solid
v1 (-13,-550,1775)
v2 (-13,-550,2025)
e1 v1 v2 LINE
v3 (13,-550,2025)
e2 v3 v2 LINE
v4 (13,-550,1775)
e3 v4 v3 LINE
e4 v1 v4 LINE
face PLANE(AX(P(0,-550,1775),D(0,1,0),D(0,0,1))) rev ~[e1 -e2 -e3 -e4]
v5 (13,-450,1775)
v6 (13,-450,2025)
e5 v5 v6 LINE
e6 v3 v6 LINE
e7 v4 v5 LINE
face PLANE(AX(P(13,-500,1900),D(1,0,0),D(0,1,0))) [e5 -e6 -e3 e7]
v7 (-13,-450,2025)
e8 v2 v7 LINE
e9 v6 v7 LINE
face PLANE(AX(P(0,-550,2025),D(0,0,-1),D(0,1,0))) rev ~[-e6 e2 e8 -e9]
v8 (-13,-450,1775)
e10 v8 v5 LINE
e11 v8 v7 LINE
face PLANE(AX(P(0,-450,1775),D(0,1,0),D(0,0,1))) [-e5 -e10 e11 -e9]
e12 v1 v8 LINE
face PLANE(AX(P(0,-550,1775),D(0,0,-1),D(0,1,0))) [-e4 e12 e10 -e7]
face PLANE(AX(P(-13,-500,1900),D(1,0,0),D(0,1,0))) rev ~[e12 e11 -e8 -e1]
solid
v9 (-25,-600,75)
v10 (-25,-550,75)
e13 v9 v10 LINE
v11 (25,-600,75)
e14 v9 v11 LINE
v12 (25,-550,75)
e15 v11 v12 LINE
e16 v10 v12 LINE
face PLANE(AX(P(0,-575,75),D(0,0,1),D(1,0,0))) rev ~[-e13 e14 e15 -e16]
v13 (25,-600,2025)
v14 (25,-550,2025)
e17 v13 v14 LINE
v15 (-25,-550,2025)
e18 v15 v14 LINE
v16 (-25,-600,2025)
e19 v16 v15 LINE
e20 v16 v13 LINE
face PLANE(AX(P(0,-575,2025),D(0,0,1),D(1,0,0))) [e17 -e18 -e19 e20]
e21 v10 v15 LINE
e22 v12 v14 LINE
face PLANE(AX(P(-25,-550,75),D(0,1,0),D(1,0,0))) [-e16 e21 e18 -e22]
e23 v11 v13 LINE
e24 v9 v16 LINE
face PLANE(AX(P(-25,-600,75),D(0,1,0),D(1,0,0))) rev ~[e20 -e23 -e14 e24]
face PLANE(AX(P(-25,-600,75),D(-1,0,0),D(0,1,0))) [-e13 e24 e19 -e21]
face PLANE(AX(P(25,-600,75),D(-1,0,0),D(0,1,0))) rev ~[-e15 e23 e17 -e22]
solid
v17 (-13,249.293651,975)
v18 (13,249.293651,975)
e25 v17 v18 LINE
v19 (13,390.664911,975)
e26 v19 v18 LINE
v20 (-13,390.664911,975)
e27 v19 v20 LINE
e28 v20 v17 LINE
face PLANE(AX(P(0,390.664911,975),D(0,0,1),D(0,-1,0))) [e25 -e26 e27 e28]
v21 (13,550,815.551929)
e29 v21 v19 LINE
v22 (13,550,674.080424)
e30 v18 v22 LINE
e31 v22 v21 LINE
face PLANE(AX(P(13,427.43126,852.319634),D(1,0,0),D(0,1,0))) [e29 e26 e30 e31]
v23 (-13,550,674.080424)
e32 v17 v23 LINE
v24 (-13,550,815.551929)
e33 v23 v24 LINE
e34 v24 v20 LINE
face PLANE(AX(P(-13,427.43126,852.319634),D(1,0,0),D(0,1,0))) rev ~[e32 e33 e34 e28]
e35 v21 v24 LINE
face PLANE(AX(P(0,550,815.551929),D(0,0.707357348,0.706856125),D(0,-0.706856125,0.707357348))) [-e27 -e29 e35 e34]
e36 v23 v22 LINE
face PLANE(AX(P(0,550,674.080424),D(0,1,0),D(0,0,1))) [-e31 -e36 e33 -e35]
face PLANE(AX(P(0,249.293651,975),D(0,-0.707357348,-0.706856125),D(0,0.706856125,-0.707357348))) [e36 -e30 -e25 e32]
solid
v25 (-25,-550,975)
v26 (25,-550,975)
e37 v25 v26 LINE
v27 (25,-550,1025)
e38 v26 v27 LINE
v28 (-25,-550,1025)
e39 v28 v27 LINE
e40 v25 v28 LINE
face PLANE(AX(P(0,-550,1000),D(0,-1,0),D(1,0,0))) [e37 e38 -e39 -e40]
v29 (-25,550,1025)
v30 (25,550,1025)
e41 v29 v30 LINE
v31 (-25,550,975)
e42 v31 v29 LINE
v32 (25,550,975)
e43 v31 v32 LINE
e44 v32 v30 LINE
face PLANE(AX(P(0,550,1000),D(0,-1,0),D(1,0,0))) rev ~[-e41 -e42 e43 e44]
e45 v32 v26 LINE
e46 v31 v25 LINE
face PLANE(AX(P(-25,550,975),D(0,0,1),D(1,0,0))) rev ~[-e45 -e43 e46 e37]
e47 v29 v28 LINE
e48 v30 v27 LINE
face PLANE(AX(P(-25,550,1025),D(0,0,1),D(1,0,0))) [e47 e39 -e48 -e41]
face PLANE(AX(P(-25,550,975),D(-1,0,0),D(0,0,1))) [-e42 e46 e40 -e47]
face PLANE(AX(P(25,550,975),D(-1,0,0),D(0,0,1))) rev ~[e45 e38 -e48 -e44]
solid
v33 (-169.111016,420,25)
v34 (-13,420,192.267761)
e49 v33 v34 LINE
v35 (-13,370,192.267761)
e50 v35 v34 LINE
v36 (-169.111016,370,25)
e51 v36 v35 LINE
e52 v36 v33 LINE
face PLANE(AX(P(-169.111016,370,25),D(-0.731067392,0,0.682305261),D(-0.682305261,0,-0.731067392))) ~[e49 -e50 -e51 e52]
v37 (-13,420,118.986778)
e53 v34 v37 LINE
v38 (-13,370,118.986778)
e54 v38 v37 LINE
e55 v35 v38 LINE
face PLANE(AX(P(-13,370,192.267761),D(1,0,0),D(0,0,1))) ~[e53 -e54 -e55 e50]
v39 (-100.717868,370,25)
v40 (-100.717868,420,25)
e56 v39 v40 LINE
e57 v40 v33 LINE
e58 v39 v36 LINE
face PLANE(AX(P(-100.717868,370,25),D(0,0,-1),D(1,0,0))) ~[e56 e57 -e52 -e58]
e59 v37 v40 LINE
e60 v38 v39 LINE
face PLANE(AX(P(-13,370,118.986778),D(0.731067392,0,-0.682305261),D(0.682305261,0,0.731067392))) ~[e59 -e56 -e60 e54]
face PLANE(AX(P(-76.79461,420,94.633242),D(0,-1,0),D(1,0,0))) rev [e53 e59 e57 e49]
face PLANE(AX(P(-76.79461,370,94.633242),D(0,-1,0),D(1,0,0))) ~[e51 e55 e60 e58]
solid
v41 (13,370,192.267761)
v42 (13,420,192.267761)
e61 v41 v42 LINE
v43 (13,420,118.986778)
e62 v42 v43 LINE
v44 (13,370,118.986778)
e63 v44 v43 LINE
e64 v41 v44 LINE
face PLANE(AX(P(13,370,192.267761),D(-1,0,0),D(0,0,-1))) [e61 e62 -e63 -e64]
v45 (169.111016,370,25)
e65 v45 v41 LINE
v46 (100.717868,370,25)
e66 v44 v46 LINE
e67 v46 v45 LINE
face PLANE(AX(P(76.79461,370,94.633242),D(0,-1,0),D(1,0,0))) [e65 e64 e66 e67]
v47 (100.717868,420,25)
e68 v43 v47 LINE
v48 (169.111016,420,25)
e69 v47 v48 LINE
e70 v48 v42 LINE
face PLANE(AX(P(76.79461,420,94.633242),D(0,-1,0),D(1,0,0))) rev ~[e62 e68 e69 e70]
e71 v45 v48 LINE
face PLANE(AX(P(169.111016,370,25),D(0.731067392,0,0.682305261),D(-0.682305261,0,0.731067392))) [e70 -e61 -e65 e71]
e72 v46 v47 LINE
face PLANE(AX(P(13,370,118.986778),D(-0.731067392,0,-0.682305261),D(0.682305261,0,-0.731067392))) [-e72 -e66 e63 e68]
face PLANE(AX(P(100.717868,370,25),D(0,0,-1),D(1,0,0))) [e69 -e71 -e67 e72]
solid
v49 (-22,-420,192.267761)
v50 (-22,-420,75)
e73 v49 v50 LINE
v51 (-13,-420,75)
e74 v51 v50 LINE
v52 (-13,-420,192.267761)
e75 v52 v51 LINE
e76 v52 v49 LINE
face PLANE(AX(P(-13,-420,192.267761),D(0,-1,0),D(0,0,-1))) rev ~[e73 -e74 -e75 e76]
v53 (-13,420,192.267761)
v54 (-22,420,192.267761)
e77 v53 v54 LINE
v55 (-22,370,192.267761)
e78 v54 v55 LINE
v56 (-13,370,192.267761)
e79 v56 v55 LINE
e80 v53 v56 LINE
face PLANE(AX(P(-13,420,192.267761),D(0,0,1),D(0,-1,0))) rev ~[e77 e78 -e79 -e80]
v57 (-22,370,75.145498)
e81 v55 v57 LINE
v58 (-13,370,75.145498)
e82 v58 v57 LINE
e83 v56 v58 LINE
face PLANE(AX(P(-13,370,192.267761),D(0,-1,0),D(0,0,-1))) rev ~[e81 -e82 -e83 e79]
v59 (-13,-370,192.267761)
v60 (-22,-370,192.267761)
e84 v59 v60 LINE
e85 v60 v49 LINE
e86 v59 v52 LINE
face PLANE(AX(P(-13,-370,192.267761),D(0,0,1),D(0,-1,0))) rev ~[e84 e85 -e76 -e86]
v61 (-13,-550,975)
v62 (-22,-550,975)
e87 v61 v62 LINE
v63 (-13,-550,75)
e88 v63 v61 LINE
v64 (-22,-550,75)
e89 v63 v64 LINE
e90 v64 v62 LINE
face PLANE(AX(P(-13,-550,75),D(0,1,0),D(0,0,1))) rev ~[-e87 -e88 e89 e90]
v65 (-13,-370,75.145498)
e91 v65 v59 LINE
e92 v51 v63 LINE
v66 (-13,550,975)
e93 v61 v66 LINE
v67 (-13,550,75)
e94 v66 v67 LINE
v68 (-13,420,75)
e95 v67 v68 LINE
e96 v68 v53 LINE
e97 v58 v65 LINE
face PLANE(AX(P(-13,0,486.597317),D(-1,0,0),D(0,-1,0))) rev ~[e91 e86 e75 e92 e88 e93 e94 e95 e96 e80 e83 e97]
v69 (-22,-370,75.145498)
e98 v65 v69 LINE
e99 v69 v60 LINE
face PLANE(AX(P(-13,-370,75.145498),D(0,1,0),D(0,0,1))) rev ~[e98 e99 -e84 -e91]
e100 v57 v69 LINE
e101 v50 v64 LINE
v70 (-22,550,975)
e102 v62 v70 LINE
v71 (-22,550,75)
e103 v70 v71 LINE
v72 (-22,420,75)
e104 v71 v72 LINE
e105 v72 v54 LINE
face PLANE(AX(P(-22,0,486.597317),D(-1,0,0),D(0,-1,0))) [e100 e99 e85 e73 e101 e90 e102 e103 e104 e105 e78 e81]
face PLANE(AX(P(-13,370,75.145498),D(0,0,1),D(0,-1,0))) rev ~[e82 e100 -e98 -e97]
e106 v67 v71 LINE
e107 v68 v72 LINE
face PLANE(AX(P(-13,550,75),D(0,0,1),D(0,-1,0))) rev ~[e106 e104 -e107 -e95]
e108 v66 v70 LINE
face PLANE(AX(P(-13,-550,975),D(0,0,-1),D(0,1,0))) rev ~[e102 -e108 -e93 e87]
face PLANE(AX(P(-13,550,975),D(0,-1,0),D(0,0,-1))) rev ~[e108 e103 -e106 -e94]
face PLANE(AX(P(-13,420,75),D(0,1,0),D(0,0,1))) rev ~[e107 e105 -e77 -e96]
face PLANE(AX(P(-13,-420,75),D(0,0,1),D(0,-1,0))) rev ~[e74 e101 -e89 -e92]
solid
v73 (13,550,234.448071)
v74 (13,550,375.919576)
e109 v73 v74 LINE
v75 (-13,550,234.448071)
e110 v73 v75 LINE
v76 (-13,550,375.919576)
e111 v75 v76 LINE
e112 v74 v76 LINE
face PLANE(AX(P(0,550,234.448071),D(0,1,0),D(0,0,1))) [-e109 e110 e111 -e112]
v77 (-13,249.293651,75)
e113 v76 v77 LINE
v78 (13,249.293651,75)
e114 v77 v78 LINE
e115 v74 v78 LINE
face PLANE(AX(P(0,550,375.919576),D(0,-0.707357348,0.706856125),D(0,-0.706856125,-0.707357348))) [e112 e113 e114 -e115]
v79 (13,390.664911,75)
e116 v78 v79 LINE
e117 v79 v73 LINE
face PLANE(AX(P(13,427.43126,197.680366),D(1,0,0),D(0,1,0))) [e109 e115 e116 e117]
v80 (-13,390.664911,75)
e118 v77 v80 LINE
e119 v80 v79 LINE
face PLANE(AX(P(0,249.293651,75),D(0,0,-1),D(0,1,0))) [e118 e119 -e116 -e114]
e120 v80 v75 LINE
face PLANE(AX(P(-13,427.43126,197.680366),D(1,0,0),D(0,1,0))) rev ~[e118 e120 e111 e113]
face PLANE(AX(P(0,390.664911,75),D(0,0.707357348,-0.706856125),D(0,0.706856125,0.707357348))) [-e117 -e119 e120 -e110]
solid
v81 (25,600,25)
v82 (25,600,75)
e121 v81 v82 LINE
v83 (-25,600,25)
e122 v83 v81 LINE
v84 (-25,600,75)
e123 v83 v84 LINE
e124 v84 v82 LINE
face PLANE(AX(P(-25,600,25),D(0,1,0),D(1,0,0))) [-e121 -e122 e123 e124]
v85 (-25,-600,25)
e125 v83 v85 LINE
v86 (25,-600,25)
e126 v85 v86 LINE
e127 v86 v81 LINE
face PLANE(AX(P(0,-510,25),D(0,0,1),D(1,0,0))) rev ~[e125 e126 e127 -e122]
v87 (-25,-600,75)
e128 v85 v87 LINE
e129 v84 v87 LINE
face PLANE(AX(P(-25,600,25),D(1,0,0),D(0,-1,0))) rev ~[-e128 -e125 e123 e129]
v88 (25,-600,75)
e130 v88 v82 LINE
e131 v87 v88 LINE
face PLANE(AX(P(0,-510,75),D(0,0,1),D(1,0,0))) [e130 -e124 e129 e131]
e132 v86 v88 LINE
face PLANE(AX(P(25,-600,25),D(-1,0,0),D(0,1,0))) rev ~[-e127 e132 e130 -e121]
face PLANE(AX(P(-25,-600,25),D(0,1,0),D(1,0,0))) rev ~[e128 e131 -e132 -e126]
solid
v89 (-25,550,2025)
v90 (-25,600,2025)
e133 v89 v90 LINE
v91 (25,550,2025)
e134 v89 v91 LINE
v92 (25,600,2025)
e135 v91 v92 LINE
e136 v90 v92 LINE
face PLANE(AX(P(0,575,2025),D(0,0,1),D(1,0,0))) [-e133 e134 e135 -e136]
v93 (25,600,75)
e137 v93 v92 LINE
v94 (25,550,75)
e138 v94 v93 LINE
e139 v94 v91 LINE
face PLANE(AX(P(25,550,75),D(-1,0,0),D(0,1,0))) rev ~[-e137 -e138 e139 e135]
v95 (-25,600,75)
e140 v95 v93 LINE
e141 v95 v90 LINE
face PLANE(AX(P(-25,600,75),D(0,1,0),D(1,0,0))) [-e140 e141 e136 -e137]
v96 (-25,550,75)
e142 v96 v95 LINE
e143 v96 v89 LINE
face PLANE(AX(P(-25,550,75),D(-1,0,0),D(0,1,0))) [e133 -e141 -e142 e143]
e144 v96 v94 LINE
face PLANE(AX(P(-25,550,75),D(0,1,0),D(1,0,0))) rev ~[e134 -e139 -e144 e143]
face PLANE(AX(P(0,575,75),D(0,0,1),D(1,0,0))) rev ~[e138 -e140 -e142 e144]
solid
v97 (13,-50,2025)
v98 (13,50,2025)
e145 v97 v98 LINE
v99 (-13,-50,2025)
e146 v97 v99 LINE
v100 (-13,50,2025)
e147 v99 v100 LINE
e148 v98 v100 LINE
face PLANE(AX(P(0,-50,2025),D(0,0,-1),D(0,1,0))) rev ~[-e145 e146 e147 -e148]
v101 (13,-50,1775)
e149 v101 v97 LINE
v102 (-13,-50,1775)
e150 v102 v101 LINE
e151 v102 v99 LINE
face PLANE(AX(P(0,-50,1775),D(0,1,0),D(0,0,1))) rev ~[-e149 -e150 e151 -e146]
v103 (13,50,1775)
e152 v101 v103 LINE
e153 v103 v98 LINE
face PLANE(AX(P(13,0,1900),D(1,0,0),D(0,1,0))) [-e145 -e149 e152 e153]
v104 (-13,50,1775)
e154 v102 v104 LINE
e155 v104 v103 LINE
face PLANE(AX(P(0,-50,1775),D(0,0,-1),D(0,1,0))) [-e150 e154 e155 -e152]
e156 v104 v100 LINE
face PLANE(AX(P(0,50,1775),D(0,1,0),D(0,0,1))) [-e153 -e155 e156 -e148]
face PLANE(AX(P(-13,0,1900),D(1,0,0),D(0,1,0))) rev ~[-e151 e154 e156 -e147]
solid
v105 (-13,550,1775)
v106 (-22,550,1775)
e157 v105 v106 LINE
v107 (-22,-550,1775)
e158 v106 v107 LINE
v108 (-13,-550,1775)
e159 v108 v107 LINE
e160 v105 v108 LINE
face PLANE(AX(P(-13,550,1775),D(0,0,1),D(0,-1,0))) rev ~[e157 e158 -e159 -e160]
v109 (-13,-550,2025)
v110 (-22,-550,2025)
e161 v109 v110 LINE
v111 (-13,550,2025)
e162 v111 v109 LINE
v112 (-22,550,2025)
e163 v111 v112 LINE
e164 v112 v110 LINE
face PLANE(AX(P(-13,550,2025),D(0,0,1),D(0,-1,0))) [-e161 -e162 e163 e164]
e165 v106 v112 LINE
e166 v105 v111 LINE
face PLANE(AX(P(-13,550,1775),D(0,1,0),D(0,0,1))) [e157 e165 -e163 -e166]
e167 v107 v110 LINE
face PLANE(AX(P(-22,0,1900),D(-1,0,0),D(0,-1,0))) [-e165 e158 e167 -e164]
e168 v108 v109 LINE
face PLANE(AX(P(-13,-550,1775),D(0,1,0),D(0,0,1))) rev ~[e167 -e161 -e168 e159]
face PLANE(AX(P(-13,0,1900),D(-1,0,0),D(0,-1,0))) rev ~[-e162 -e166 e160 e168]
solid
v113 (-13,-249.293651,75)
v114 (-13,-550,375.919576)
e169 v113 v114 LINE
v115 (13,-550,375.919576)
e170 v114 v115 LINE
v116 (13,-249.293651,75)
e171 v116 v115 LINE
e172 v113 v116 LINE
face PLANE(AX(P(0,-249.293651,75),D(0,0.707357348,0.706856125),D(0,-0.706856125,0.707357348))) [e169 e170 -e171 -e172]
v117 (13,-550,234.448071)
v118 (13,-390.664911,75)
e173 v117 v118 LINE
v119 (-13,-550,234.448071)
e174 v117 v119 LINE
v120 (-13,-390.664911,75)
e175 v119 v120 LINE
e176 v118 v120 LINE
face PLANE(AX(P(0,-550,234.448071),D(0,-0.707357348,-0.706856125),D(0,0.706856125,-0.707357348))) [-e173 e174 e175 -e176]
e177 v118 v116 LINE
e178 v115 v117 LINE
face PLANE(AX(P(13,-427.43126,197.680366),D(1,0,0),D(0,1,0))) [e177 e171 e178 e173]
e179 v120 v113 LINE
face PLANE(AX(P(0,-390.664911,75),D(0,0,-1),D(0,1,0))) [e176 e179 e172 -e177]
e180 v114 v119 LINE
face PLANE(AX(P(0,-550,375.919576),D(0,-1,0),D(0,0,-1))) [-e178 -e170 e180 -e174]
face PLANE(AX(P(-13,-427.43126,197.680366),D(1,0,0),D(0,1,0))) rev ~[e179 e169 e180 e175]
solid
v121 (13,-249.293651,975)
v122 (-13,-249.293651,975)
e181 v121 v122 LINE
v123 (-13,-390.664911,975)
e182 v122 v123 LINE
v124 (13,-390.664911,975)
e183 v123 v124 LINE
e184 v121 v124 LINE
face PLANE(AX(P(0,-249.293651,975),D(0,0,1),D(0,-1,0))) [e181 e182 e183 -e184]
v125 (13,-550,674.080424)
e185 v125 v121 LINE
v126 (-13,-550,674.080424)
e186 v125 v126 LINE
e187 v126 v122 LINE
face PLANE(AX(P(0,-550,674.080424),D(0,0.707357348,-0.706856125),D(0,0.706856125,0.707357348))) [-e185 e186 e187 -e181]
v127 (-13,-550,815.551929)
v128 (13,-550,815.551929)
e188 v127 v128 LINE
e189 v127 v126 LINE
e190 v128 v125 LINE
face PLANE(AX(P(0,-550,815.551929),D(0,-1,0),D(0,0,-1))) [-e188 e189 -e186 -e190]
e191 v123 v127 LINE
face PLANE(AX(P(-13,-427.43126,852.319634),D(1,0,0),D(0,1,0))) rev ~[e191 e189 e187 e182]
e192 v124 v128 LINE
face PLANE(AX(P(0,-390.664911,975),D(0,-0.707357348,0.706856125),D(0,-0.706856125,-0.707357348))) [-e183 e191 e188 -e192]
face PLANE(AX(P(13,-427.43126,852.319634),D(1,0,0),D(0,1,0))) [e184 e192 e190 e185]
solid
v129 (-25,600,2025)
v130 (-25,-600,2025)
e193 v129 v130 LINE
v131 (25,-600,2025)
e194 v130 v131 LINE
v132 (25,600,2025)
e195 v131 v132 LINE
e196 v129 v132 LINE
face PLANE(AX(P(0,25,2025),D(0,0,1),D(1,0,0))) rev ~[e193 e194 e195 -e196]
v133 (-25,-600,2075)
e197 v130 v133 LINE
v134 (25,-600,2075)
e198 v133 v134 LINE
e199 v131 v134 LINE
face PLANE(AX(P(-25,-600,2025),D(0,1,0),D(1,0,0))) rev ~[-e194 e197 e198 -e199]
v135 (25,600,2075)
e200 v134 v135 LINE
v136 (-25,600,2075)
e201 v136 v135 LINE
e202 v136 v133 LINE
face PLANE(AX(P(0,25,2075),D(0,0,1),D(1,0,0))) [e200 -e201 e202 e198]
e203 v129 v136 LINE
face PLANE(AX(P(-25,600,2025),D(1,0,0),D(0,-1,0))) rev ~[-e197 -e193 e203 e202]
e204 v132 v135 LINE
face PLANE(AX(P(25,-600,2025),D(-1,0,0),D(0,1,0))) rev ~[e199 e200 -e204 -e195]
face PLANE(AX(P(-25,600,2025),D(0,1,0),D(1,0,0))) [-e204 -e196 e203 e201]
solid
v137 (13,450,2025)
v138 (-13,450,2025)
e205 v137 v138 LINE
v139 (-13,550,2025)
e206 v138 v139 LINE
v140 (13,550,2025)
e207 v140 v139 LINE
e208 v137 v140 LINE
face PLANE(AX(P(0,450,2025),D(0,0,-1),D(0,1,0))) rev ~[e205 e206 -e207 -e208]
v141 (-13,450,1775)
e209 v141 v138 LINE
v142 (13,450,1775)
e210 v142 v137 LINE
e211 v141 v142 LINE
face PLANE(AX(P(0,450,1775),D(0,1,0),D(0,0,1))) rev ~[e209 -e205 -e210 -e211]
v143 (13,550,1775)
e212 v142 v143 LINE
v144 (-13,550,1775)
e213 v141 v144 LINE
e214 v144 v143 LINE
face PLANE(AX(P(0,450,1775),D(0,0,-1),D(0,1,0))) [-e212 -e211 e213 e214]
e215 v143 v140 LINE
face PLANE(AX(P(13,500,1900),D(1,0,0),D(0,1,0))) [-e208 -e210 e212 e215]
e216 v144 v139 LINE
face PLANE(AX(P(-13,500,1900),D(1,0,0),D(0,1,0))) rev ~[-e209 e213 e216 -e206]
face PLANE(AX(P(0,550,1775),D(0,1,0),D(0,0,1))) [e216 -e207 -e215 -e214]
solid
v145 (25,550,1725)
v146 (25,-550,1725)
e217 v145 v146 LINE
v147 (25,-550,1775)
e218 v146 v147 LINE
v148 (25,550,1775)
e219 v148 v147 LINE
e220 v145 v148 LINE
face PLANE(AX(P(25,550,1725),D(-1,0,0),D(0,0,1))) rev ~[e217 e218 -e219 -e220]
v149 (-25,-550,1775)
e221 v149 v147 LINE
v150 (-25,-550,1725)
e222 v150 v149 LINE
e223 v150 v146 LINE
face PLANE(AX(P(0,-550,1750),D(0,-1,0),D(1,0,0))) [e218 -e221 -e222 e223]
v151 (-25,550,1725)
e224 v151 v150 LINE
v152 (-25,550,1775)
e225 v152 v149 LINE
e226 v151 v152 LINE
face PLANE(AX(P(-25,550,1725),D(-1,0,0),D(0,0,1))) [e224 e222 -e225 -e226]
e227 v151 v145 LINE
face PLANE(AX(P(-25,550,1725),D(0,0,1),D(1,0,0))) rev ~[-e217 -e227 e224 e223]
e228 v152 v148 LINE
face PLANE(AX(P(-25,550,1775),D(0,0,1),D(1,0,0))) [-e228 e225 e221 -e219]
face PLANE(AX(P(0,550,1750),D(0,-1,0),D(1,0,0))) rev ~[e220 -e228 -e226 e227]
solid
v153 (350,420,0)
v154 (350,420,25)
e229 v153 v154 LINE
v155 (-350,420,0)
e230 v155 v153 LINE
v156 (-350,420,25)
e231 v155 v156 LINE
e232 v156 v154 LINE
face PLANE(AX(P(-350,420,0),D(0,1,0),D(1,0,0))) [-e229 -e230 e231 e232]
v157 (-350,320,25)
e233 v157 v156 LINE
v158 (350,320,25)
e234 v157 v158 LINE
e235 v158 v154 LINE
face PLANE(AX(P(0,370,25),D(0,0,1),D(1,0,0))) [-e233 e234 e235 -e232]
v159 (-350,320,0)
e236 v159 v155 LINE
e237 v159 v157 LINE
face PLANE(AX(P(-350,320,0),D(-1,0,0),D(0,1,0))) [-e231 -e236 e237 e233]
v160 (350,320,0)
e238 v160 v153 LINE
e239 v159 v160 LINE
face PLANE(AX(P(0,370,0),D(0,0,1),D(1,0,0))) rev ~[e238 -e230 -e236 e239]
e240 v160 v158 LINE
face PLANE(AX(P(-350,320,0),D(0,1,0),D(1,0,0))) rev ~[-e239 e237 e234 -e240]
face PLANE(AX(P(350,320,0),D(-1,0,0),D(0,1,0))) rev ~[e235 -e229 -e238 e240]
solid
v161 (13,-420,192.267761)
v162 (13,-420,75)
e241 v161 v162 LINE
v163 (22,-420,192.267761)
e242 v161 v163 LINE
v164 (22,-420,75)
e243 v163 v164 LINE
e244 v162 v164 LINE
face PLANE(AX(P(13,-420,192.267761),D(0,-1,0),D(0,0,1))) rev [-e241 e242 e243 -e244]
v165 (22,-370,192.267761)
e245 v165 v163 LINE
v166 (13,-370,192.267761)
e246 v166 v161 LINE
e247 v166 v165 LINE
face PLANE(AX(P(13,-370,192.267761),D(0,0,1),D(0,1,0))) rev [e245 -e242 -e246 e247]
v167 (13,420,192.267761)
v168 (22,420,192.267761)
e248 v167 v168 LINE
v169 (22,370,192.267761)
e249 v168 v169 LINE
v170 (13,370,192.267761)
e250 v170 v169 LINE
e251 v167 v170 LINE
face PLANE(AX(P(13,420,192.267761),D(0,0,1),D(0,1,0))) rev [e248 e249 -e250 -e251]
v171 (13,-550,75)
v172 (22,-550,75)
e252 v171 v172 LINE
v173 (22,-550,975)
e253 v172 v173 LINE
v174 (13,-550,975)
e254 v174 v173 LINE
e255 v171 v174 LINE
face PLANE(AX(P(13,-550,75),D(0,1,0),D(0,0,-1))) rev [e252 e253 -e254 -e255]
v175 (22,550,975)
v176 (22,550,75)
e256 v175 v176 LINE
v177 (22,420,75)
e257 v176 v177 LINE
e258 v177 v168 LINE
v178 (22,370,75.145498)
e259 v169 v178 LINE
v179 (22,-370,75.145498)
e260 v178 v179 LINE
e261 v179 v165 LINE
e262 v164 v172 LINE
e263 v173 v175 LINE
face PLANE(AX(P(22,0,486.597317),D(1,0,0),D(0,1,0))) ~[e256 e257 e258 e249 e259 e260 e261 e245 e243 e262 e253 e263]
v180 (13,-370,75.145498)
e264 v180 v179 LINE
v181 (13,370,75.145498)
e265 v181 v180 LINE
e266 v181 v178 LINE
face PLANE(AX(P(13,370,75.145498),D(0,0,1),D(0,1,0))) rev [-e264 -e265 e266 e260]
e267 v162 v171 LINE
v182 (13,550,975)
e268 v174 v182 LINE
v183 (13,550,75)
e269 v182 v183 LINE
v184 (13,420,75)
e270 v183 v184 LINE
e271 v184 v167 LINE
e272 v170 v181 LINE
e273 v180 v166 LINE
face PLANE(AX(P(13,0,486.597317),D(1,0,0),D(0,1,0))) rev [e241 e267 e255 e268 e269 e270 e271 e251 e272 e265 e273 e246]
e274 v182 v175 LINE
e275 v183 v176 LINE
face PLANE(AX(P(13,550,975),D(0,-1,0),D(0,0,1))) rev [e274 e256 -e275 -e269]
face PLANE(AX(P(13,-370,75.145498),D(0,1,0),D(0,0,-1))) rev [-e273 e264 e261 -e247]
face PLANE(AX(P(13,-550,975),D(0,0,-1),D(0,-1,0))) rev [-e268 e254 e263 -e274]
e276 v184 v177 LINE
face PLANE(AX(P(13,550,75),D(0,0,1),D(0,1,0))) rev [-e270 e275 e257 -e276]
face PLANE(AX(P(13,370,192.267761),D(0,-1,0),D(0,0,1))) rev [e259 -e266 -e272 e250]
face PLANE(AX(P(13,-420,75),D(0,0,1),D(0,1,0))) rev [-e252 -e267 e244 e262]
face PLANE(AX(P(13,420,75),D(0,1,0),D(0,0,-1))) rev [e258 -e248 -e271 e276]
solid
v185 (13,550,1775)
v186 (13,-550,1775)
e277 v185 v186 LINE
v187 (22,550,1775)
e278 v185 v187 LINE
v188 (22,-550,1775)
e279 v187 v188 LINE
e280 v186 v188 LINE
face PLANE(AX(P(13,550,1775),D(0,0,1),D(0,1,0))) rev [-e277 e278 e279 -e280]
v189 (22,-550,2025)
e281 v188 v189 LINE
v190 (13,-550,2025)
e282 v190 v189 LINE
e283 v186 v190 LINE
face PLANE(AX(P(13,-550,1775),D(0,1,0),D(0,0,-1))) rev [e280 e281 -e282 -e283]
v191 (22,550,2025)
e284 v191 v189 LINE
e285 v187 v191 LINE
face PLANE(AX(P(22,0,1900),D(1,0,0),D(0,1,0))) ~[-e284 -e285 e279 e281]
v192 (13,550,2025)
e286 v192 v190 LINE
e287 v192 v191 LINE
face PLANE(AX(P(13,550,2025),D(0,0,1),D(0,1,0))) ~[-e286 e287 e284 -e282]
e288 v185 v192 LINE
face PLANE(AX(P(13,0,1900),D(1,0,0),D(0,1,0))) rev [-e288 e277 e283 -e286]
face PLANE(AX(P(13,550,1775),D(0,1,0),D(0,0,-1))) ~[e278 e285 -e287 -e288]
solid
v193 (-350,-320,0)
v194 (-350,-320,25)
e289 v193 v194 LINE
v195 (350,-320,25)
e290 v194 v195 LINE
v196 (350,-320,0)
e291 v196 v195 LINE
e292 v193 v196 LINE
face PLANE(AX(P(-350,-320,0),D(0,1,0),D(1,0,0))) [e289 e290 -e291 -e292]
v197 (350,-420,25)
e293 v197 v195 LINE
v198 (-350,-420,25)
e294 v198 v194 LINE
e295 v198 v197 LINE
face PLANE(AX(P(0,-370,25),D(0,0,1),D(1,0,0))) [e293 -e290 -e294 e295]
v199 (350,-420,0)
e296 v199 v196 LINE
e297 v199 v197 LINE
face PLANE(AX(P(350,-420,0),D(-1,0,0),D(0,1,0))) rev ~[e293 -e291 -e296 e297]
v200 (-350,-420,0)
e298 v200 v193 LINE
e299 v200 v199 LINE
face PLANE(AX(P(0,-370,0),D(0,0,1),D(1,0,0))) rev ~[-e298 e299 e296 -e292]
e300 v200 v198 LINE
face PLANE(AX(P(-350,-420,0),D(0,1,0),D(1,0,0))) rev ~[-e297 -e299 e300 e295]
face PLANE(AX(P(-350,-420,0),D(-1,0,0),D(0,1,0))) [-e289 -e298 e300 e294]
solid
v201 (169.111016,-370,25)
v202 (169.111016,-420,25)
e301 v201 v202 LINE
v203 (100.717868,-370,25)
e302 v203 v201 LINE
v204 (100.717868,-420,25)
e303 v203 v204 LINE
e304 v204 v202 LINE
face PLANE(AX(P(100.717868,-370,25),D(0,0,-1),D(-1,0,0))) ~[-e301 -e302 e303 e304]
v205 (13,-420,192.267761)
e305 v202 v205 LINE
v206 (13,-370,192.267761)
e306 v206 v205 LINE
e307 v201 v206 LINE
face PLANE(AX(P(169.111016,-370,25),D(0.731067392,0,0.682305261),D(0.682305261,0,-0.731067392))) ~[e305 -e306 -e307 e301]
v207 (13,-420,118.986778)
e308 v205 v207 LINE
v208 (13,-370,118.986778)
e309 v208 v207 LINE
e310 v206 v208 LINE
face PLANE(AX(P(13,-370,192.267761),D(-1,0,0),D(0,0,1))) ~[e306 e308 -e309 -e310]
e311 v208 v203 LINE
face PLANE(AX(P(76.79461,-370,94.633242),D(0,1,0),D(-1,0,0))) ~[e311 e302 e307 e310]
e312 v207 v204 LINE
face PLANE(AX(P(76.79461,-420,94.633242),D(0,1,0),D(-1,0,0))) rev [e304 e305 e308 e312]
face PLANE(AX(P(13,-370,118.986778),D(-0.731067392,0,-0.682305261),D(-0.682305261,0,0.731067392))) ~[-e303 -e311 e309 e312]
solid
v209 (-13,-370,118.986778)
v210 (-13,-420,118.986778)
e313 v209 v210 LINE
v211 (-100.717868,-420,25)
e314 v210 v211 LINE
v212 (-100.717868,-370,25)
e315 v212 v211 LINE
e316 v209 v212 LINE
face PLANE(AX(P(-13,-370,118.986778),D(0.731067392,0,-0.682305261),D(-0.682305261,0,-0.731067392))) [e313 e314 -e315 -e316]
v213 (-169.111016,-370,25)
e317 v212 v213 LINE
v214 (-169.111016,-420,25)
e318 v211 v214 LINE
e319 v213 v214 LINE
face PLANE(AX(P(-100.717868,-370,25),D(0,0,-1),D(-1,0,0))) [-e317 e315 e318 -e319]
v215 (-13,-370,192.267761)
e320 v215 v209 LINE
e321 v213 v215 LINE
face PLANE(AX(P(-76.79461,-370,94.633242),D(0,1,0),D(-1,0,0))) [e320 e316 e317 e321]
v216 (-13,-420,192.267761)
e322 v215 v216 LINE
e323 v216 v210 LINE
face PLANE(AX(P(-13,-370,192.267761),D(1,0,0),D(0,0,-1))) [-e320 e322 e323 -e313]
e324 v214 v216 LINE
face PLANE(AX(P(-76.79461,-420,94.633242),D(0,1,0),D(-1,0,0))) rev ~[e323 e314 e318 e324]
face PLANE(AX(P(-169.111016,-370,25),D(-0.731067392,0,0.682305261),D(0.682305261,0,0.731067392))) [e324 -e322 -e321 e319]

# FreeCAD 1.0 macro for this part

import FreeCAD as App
import Part
import Sketcher

V = App.Vector

doc = App.newDocument("Part")
body = doc.addObject("PartDesign::Body", "Body")

sketch1 = body.newObject("Sketcher::SketchObject", "Sketch")
sketch1.AttachmentSupport = (doc.getObject("XY_Plane"), [""])
sketch1.MapMode = "FlatFace"
sketch1.addGeometry([
    Part.LineSegment(V(-350, 420, 0), V(-350, 320, 0)),
    Part.LineSegment(V(-350, 320, 0), V(350, 320, 0)),
    Part.LineSegment(V(350, 320, 0), V(350, 420, 0)),
    Part.LineSegment(V(350, 420, 0), V(-350, 420, 0)),
], False)
sketch1.addConstraint([
    Sketcher.Constraint("Coincident", 0, 2, 1, 1),
    Sketcher.Constraint("Coincident", 1, 2, 2, 1),
    Sketcher.Constraint("Coincident", 2, 2, 3, 1),
    Sketcher.Constraint("Coincident", 3, 2, 0, 1),
    Sketcher.Constraint("Vertical", 0),
    Sketcher.Constraint("Horizontal", 1),
    Sketcher.Constraint("Vertical", 2),
    Sketcher.Constraint("Horizontal", 3),
    Sketcher.Constraint("DistanceX", 1, 1, 1, 2, 700.0),
    Sketcher.Constraint("DistanceY", 0, 2, 0, 1, 100.0),
    Sketcher.Constraint("DistanceX", 0, 2, -1, 1, 350.0),
    Sketcher.Constraint("DistanceY", -1, 1, 0, 2, 320.0),
])
pad1 = body.newObject("PartDesign::Pad", "Pad")
pad1.Profile = sketch1
pad1.Length = 25
body2 = doc.addObject("PartDesign::Body", "Body001")

sketch2 = body2.newObject("Sketcher::SketchObject", "Sketch001")
sketch2.AttachmentSupport = (doc.getObject("XY_Plane001"), [""])
sketch2.MapMode = "FlatFace"
sketch2.addGeometry([
    Part.LineSegment(V(-350, -320, 0), V(-350, -420, 0)),
    Part.LineSegment(V(-350, -420, 0), V(350, -420, 0)),
    Part.LineSegment(V(350, -420, 0), V(350, -320, 0)),
    Part.LineSegment(V(350, -320, 0), V(-350, -320, 0)),
], False)
sketch2.addConstraint([
    Sketcher.Constraint("Coincident", 0, 2, 1, 1),
    Sketcher.Constraint("Coincident", 1, 2, 2, 1),
    Sketcher.Constraint("Coincident", 2, 2, 3, 1),
    Sketcher.Constraint("Coincident", 3, 2, 0, 1),
    Sketcher.Constraint("Vertical", 0),
    Sketcher.Constraint("Horizontal", 1),
    Sketcher.Constraint("Vertical", 2),
    Sketcher.Constraint("Horizontal", 3),
    Sketcher.Constraint("DistanceX", 1, 1, 1, 2, 700.0),
    Sketcher.Constraint("DistanceY", 0, 2, 0, 1, 100.0),
    Sketcher.Constraint("DistanceX", 0, 2, -1, 1, 350.0),
    Sketcher.Constraint("DistanceY", 0, 2, -1, 1, 420.0),
])
pad2 = body2.newObject("PartDesign::Pad", "Pad001")
pad2.Profile = sketch2
pad2.Length = 25
body3 = doc.addObject("PartDesign::Body", "Body002")

sketch3 = body3.newObject("Sketcher::SketchObject", "Sketch002")
sketch3.AttachmentSupport = (doc.getObject("XY_Plane002"), [""])
sketch3.MapMode = "FlatFace"
sketch3.AttachmentOffset = App.Placement(V(0, 0, 25), App.Rotation())
sketch3.addGeometry([
    Part.LineSegment(V(-25, -600, 0), V(25, -600, 0)),
    Part.LineSegment(V(25, -600, 0), V(25, 600, 0)),
    Part.LineSegment(V(25, 600, 0), V(-25, 600, 0)),
    Part.LineSegment(V(-25, 600, 0), V(-25, -600, 0)),
], False)
sketch3.addConstraint([
    Sketcher.Constraint("Coincident", 0, 2, 1, 1),
    Sketcher.Constraint("Coincident", 1, 2, 2, 1),
    Sketcher.Constraint("Coincident", 2, 2, 3, 1),
    Sketcher.Constraint("Coincident", 3, 2, 0, 1),
    Sketcher.Constraint("Horizontal", 0),
    Sketcher.Constraint("Vertical", 1),
    Sketcher.Constraint("Horizontal", 2),
    Sketcher.Constraint("Vertical", 3),
    Sketcher.Constraint("Symmetric", 0, 2, 2, 2, -1, 1),
    Sketcher.Constraint("DistanceX", 0, 1, 0, 2, 50.0),
    Sketcher.Constraint("DistanceY", 1, 1, 1, 2, 1200.0),
])
pad3 = body3.newObject("PartDesign::Pad", "Pad002")
pad3.Profile = sketch3
pad3.Length = 50
body4 = doc.addObject("PartDesign::Body", "Body003")

sketch4 = body4.newObject("Sketcher::SketchObject", "Sketch003")
sketch4.AttachmentSupport = (doc.getObject("XY_Plane003"), [""])
sketch4.MapMode = "FlatFace"
sketch4.AttachmentOffset = App.Placement(V(0, 0, 75), App.Rotation())
sketch4.addGeometry([
    Part.LineSegment(V(-25, -550, 0), V(-25, -600, 0)),
    Part.LineSegment(V(-25, -600, 0), V(25, -600, 0)),
    Part.LineSegment(V(25, -600, 0), V(25, -550, 0)),
    Part.LineSegment(V(25, -550, 0), V(-25, -550, 0)),
], False)
sketch4.addConstraint([
    Sketcher.Constraint("Coincident", 0, 2, 1, 1),
    Sketcher.Constraint("Coincident", 1, 2, 2, 1),
    Sketcher.Constraint("Coincident", 2, 2, 3, 1),
    Sketcher.Constraint("Coincident", 3, 2, 0, 1),
    Sketcher.Constraint("Vertical", 0),
    Sketcher.Constraint("Horizontal", 1),
    Sketcher.Constraint("Vertical", 2),
    Sketcher.Constraint("Horizontal", 3),
    Sketcher.Constraint("Equal", 3, 0),
    Sketcher.Constraint("DistanceX", 1, 1, 1, 2, 50.0),
    Sketcher.Constraint("DistanceX", 0, 2, -1, 1, 25.0),
    Sketcher.Constraint("DistanceY", 0, 2, -1, 1, 600.0),
])
pad4 = body4.newObject("PartDesign::Pad", "Pad003")
pad4.Profile = sketch4
pad4.Length = 1950
body5 = doc.addObject("PartDesign::Body", "Body004")

sketch5 = body5.newObject("Sketcher::SketchObject", "Sketch004")
sketch5.AttachmentSupport = (doc.getObject("XY_Plane004"), [""])
sketch5.MapMode = "FlatFace"
sketch5.AttachmentOffset = App.Placement(V(0, 0, 75), App.Rotation())
sketch5.addGeometry([
    Part.LineSegment(V(-25, 600, 0), V(-25, 550, 0)),
    Part.LineSegment(V(-25, 550, 0), V(25, 550, 0)),
    Part.LineSegment(V(25, 550, 0), V(25, 600, 0)),
    Part.LineSegment(V(25, 600, 0), V(-25, 600, 0)),
], False)
sketch5.addConstraint([
    Sketcher.Constraint("Coincident", 0, 2, 1, 1),
    Sketcher.Constraint("Coincident", 1, 2, 2, 1),
    Sketcher.Constraint("Coincident", 2, 2, 3, 1),
    Sketcher.Constraint("Coincident", 3, 2, 0, 1),
    Sketcher.Constraint("Vertical", 0),
    Sketcher.Constraint("Horizontal", 1),
    Sketcher.Constraint("Vertical", 2),
    Sketcher.Constraint("Horizontal", 3),
    Sketcher.Constraint("Equal", 3, 0),
    Sketcher.Constraint("DistanceX", 1, 1, 1, 2, 50.0),
    Sketcher.Constraint("DistanceX", 0, 2, -1, 1, 25.0),
    Sketcher.Constraint("DistanceY", -1, 1, 0, 2, 550.0),
])
pad5 = body5.newObject("PartDesign::Pad", "Pad004")
pad5.Profile = sketch5
pad5.Length = 1950
body6 = doc.addObject("PartDesign::Body", "Body005")

sketch6 = body6.newObject("Sketcher::SketchObject", "Sketch005")
sketch6.AttachmentSupport = (doc.getObject("XY_Plane005"), [""])
sketch6.MapMode = "FlatFace"
sketch6.AttachmentOffset = App.Placement(V(0, 0, 2025), App.Rotation())
sketch6.addGeometry([
    Part.LineSegment(V(-25, 600, 0), V(-25, -600, 0)),
    Part.LineSegment(V(-25, -600, 0), V(25, -600, 0)),
    Part.LineSegment(V(25, -600, 0), V(25, 600, 0)),
    Part.LineSegment(V(25, 600, 0), V(-25, 600, 0)),
], False)
sketch6.addConstraint([
    Sketcher.Constraint("Coincident", 0, 2, 1, 1),
    Sketcher.Constraint("Coincident", 1, 2, 2, 1),
    Sketcher.Constraint("Coincident", 2, 2, 3, 1),
    Sketcher.Constraint("Coincident", 3, 2, 0, 1),
    Sketcher.Constraint("Vertical", 0),
    Sketcher.Constraint("Horizontal", 1),
    Sketcher.Constraint("Vertical", 2),
    Sketcher.Constraint("Horizontal", 3),
    Sketcher.Constraint("Symmetric", 0, 2, 2, 2, -1, 1),
    Sketcher.Constraint("DistanceX", 1, 1, 1, 2, 50.0),
    Sketcher.Constraint("DistanceY", 0, 2, 0, 1, 1200.0),
])
pad6 = body6.newObject("PartDesign::Pad", "Pad005")
pad6.Profile = sketch6
pad6.Length = 50
body7 = doc.addObject("PartDesign::Body", "Body006")

sketch7 = body7.newObject("Sketcher::SketchObject", "Sketch006")
sketch7.AttachmentSupport = (doc.getObject("XZ_Plane006"), [""])
sketch7.MapMode = "FlatFace"
sketch7.AttachmentOffset = App.Placement(V(0, 0, -550), App.Rotation())
sketch7.addGeometry([
    Part.LineSegment(V(-25, 1025, 0), V(-25, 975, 0)),
    Part.LineSegment(V(-25, 975, 0), V(25, 975, 0)),
    Part.LineSegment(V(25, 975, 0), V(25, 1025, 0)),
    Part.LineSegment(V(25, 1025, 0), V(-25, 1025, 0)),
], False)
sketch7.addConstraint([
    Sketcher.Constraint("Coincident", 0, 2, 1, 1),
    Sketcher.Constraint("Coincident", 1, 2, 2, 1),
    Sketcher.Constraint("Coincident", 2, 2, 3, 1),
    Sketcher.Constraint("Coincident", 3, 2, 0, 1),
    Sketcher.Constraint("Vertical", 0),
    Sketcher.Constraint("Horizontal", 1),
    Sketcher.Constraint("Vertical", 2),
    Sketcher.Constraint("Horizontal", 3),
    Sketcher.Constraint("Equal", 3, 0),
    Sketcher.Constraint("DistanceX", 1, 1, 1, 2, 50.0),
    Sketcher.Constraint("DistanceX", 0, 2, -1, 1, 25.0),
    Sketcher.Constraint("DistanceY", -1, 1, 0, 2, 975.0),
])
pad7 = body7.newObject("PartDesign::Pad", "Pad006")
pad7.Profile = sketch7
pad7.Length = 1100
body8 = doc.addObject("PartDesign::Body", "Body007")

sketch8 = body8.newObject("Sketcher::SketchObject", "Sketch007")
sketch8.AttachmentSupport = (doc.getObject("XZ_Plane007"), [""])
sketch8.MapMode = "FlatFace"
sketch8.AttachmentOffset = App.Placement(V(0, 0, -550), App.Rotation())
sketch8.addGeometry([
    Part.LineSegment(V(-25, 1775, 0), V(-25, 1725, 0)),
    Part.LineSegment(V(-25, 1725, 0), V(25, 1725, 0)),
    Part.LineSegment(V(25, 1725, 0), V(25, 1775, 0)),
    Part.LineSegment(V(25, 1775, 0), V(-25, 1775, 0)),
], False)
sketch8.addConstraint([
    Sketcher.Constraint("Coincident", 0, 2, 1, 1),
    Sketcher.Constraint("Coincident", 1, 2, 2, 1),
    Sketcher.Constraint("Coincident", 2, 2, 3, 1),
    Sketcher.Constraint("Coincident", 3, 2, 0, 1),
    Sketcher.Constraint("Vertical", 0),
    Sketcher.Constraint("Horizontal", 1),
    Sketcher.Constraint("Vertical", 2),
    Sketcher.Constraint("Horizontal", 3),
    Sketcher.Constraint("Equal", 3, 0),
    Sketcher.Constraint("DistanceX", 1, 1, 1, 2, 50.0),
    Sketcher.Constraint("DistanceX", 0, 2, -1, 1, 25.0),
    Sketcher.Constraint("DistanceY", -1, 1, 0, 2, 1725.0),
])
pad8 = body8.newObject("PartDesign::Pad", "Pad007")
pad8.Profile = sketch8
pad8.Length = 1100
body9 = doc.addObject("PartDesign::Body", "Body008")

sketch9 = body9.newObject("Sketcher::SketchObject", "Sketch008")
sketch9.AttachmentSupport = (doc.getObject("YZ_Plane008"), [""])
sketch9.MapMode = "FlatFace"
sketch9.addGeometry([
    Part.LineSegment(V(-249.293651, 975, 0), V(-390.664911, 975, 0)),
    Part.LineSegment(V(-390.664911, 975, 0), V(-550, 815.551929, 0)),
    Part.LineSegment(V(-550, 815.551929, 0), V(-550, 674.080424, 0)),
    Part.LineSegment(V(-550, 674.080424, 0), V(-249.293651, 975, 0)),
], False)
sketch9.addConstraint([
    Sketcher.Constraint("Coincident", 0, 2, 1, 1),
    Sketcher.Constraint("Coincident", 1, 2, 2, 1),
    Sketcher.Constraint("Coincident", 2, 2, 3, 1),
    Sketcher.Constraint("Coincident", 3, 2, 0, 1),
    Sketcher.Constraint("Horizontal", 0),
    Sketcher.Constraint("Vertical", 2),
    Sketcher.Constraint("Parallel", 1, 3),
    Sketcher.Constraint("DistanceY", -1, 1, 0, 2, 975.0),
    Sketcher.Constraint("DistanceX", 1, 2, -1, 1, 550.0),
    Sketcher.Constraint("Distance", 3, 425.413798),
    Sketcher.Constraint("DistanceX", 0, 2, 0, 1, 141.371261),
    Sketcher.Constraint("DistanceY", 2, 2, 2, 1, 141.471505),
])
pad9 = body9.newObject("PartDesign::Pad", "Pad008")
pad9.Profile = sketch9
pad9.Type = "TwoLengths"
pad9.Length = 13
pad9.Length2 = 13
body10 = doc.addObject("PartDesign::Body", "Body009")

sketch10 = body10.newObject("Sketcher::SketchObject", "Sketch009")
sketch10.AttachmentSupport = (doc.getObject("YZ_Plane009"), [""])
sketch10.MapMode = "FlatFace"
sketch10.addGeometry([
    Part.LineSegment(V(390.664911, 975, 0), V(249.293651, 975, 0)),
    Part.LineSegment(V(249.293651, 975, 0), V(550, 674.080424, 0)),
    Part.LineSegment(V(550, 674.080424, 0), V(550, 815.551929, 0)),
    Part.LineSegment(V(550, 815.551929, 0), V(390.664911, 975, 0)),
], False)
sketch10.addConstraint([
    Sketcher.Constraint("Coincident", 0, 2, 1, 1),
    Sketcher.Constraint("Coincident", 1, 2, 2, 1),
    Sketcher.Constraint("Coincident", 2, 2, 3, 1),
    Sketcher.Constraint("Coincident", 3, 2, 0, 1),
    Sketcher.Constraint("Horizontal", 0),
    Sketcher.Constraint("Vertical", 2),
    Sketcher.Constraint("Parallel", 1, 3),
    Sketcher.Constraint("DistanceY", -1, 1, 0, 2, 975.0),
    Sketcher.Constraint("DistanceX", -1, 1, 1, 2, 550.0),
    Sketcher.Constraint("Distance", 1, 425.413798),
    Sketcher.Constraint("DistanceX", 0, 2, 0, 1, 141.371261),
    Sketcher.Constraint("DistanceY", 2, 1, 2, 2, 141.471505),
])
pad10 = body10.newObject("PartDesign::Pad", "Pad009")
pad10.Profile = sketch10
pad10.Type = "TwoLengths"
pad10.Length = 13
pad10.Length2 = 13
body11 = doc.addObject("PartDesign::Body", "Body010")

sketch11 = body11.newObject("Sketcher::SketchObject", "Sketch010")
sketch11.AttachmentSupport = (doc.getObject("YZ_Plane010"), [""])
sketch11.MapMode = "FlatFace"
sketch11.addGeometry([
    Part.LineSegment(V(-390.664911, 75, 0), V(-249.293651, 75, 0)),
    Part.LineSegment(V(-249.293651, 75, 0), V(-550, 375.919576, 0)),
    Part.LineSegment(V(-550, 375.919576, 0), V(-550, 234.448071, 0)),
    Part.LineSegment(V(-550, 234.448071, 0), V(-390.664911, 75, 0)),
], False)
sketch11.addConstraint([
    Sketcher.Constraint("Coincident", 0, 2, 1, 1),
    Sketcher.Constraint("Coincident", 1, 2, 2, 1),
    Sketcher.Constraint("Coincident", 2, 2, 3, 1),
    Sketcher.Constraint("Coincident", 3, 2, 0, 1),
    Sketcher.Constraint("Horizontal", 0),
    Sketcher.Constraint("Vertical", 2),
    Sketcher.Constraint("Parallel", 1, 3),
    Sketcher.Constraint("DistanceY", -1, 1, 0, 2, 75.0),
    Sketcher.Constraint("DistanceX", 1, 2, -1, 1, 550.0),
    Sketcher.Constraint("Distance", 1, 425.413798),
    Sketcher.Constraint("DistanceX", 0, 1, 0, 2, 141.371261),
    Sketcher.Constraint("DistanceY", 2, 2, 2, 1, 141.471505),
])
pad11 = body11.newObject("PartDesign::Pad", "Pad010")
pad11.Profile = sketch11
pad11.Type = "TwoLengths"
pad11.Length = 13
pad11.Length2 = 13
body12 = doc.addObject("PartDesign::Body", "Body011")

sketch12 = body12.newObject("Sketcher::SketchObject", "Sketch011")
sketch12.AttachmentSupport = (doc.getObject("YZ_Plane011"), [""])
sketch12.MapMode = "FlatFace"
sketch12.addGeometry([
    Part.LineSegment(V(550, 375.919576, 0), V(249.293651, 75, 0)),
    Part.LineSegment(V(249.293651, 75, 0), V(390.664911, 75, 0)),
    Part.LineSegment(V(390.664911, 75, 0), V(550, 234.448071, 0)),
    Part.LineSegment(V(550, 234.448071, 0), V(550, 375.919576, 0)),
], False)
sketch12.addConstraint([
    Sketcher.Constraint("Coincident", 0, 2, 1, 1),
    Sketcher.Constraint("Coincident", 1, 2, 2, 1),
    Sketcher.Constraint("Coincident", 2, 2, 3, 1),
    Sketcher.Constraint("Coincident", 3, 2, 0, 1),
    Sketcher.Constraint("Horizontal", 1),
    Sketcher.Constraint("Vertical", 3),
    Sketcher.Constraint("Parallel", 0, 2),
    Sketcher.Constraint("DistanceY", -1, 1, 0, 2, 75.0),
    Sketcher.Constraint("DistanceX", -1, 1, 2, 2, 550.0),
    Sketcher.Constraint("Distance", 0, 425.413798),
    Sketcher.Constraint("DistanceX", 1, 1, 1, 2, 141.371261),
    Sketcher.Constraint("DistanceY", 3, 1, 3, 2, 141.471505),
])
pad12 = body12.newObject("PartDesign::Pad", "Pad011")
pad12.Profile = sketch12
pad12.Type = "TwoLengths"
pad12.Length = 13
pad12.Length2 = 13
body13 = doc.addObject("PartDesign::Body", "Body012")

sketch13 = body13.newObject("Sketcher::SketchObject", "Sketch012")
sketch13.AttachmentSupport = (doc.getObject("YZ_Plane012"), [""])
sketch13.MapMode = "FlatFace"
sketch13.addGeometry([
    Part.LineSegment(V(450, 2025, 0), V(450, 1775, 0)),
    Part.LineSegment(V(450, 1775, 0), V(550, 1775, 0)),
    Part.LineSegment(V(550, 1775, 0), V(550, 2025, 0)),
    Part.LineSegment(V(550, 2025, 0), V(450, 2025, 0)),
], False)
sketch13.addConstraint([
    Sketcher.Constraint("Coincident", 0, 2, 1, 1),
    Sketcher.Constraint("Coincident", 1, 2, 2, 1),
    Sketcher.Constraint("Coincident", 2, 2, 3, 1),
    Sketcher.Constraint("Coincident", 3, 2, 0, 1),
    Sketcher.Constraint("Vertical", 0),
    Sketcher.Constraint("Horizontal", 1),
    Sketcher.Constraint("Vertical", 2),
    Sketcher.Constraint("Horizontal", 3),
    Sketcher.Constraint("DistanceX", 1, 1, 1, 2, 100.0),
    Sketcher.Constraint("DistanceY", 0, 2, 0, 1, 250.0),
    Sketcher.Constraint("DistanceX", -1, 1, 0, 2, 450.0),
    Sketcher.Constraint("DistanceY", -1, 1, 0, 2, 1775.0),
])
pad13 = body13.newObject("PartDesign::Pad", "Pad012")
pad13.Profile = sketch13
pad13.Type = "TwoLengths"
pad13.Length = 13
pad13.Length2 = 13
body14 = doc.addObject("PartDesign::Body", "Body013")

sketch14 = body14.newObject("Sketcher::SketchObject", "Sketch013")
sketch14.AttachmentSupport = (doc.getObject("YZ_Plane013"), [""])
sketch14.MapMode = "FlatFace"
sketch14.addGeometry([
    Part.LineSegment(V(-550, 2025, 0), V(-550, 1775, 0)),
    Part.LineSegment(V(-550, 1775, 0), V(-450, 1775, 0)),
    Part.LineSegment(V(-450, 1775, 0), V(-450, 2025, 0)),
    Part.LineSegment(V(-450, 2025, 0), V(-550, 2025, 0)),
], False)
sketch14.addConstraint([
    Sketcher.Constraint("Coincident", 0, 2, 1, 1),
    Sketcher.Constraint("Coincident", 1, 2, 2, 1),
    Sketcher.Constraint("Coincident", 2, 2, 3, 1),
    Sketcher.Constraint("Coincident", 3, 2, 0, 1),
    Sketcher.Constraint("Vertical", 0),
    Sketcher.Constraint("Horizontal", 1),
    Sketcher.Constraint("Vertical", 2),
    Sketcher.Constraint("Horizontal", 3),
    Sketcher.Constraint("DistanceX", 1, 1, 1, 2, 100.0),
    Sketcher.Constraint("DistanceY", 0, 2, 0, 1, 250.0),
    Sketcher.Constraint("DistanceX", 0, 2, -1, 1, 550.0),
    Sketcher.Constraint("DistanceY", -1, 1, 0, 2, 1775.0),
])
pad14 = body14.newObject("PartDesign::Pad", "Pad013")
pad14.Profile = sketch14
pad14.Type = "TwoLengths"
pad14.Length = 13
pad14.Length2 = 13
body15 = doc.addObject("PartDesign::Body", "Body014")

sketch15 = body15.newObject("Sketcher::SketchObject", "Sketch014")
sketch15.AttachmentSupport = (doc.getObject("YZ_Plane014"), [""])
sketch15.MapMode = "FlatFace"
sketch15.addGeometry([
    Part.LineSegment(V(-50, 2025, 0), V(-50, 1775, 0)),
    Part.LineSegment(V(-50, 1775, 0), V(50, 1775, 0)),
    Part.LineSegment(V(50, 1775, 0), V(50, 2025, 0)),
    Part.LineSegment(V(50, 2025, 0), V(-50, 2025, 0)),
], False)
sketch15.addConstraint([
    Sketcher.Constraint("Coincident", 0, 2, 1, 1),
    Sketcher.Constraint("Coincident", 1, 2, 2, 1),
    Sketcher.Constraint("Coincident", 2, 2, 3, 1),
    Sketcher.Constraint("Coincident", 3, 2, 0, 1),
    Sketcher.Constraint("Vertical", 0),
    Sketcher.Constraint("Horizontal", 1),
    Sketcher.Constraint("Vertical", 2),
    Sketcher.Constraint("Horizontal", 3),
    Sketcher.Constraint("DistanceX", 1, 1, 1, 2, 100.0),
    Sketcher.Constraint("DistanceY", 0, 2, 0, 1, 250.0),
    Sketcher.Constraint("DistanceX", 0, 2, -1, 1, 50.0),
    Sketcher.Constraint("DistanceY", -1, 1, 0, 2, 1775.0),
])
pad15 = body15.newObject("PartDesign::Pad", "Pad014")
pad15.Profile = sketch15
pad15.Type = "TwoLengths"
pad15.Length = 13
pad15.Length2 = 13
body16 = doc.addObject("PartDesign::Body", "Body015")

sketch16 = body16.newObject("Sketcher::SketchObject", "Sketch015")
sketch16.AttachmentSupport = (doc.getObject("XZ_Plane015"), [""])
sketch16.MapMode = "FlatFace"
sketch16.AttachmentOffset = App.Placement(V(0, 0, -370), App.Rotation())
sketch16.addGeometry([
    Part.LineSegment(V(13, 118.986778, 0), V(100.717868, 25, 0)),
    Part.LineSegment(V(100.717868, 25, 0), V(169.111016, 25, 0)),
    Part.LineSegment(V(169.111016, 25, 0), V(13, 192.267761, 0)),
    Part.LineSegment(V(13, 192.267761, 0), V(13, 118.986778, 0)),
], False)
sketch16.addConstraint([
    Sketcher.Constraint("Coincident", 0, 2, 1, 1),
    Sketcher.Constraint("Coincident", 1, 2, 2, 1),
    Sketcher.Constraint("Coincident", 2, 2, 3, 1),
    Sketcher.Constraint("Coincident", 3, 2, 0, 1),
    Sketcher.Constraint("Horizontal", 1),
    Sketcher.Constraint("Vertical", 3),
    Sketcher.Constraint("Parallel", 0, 2),
    Sketcher.Constraint("DistanceY", -1, 1, 0, 2, 25.0),
    Sketcher.Constraint("DistanceX", -1, 1, 2, 2, 13.0),
    Sketcher.Constraint("Distance", 0, 128.561032),
    Sketcher.Constraint("DistanceX", 1, 1, 1, 2, 68.393148),
    Sketcher.Constraint("DistanceY", 3, 2, 3, 1, 73.280983),
])
pad16 = body16.newObject("PartDesign::Pad", "Pad015")
pad16.Profile = sketch16
pad16.Length = 50
pad16.Reversed = True
body17 = doc.addObject("PartDesign::Body", "Body016")
doc.recompute()

mirroring = doc.addObject("Part::Mirroring", "Mirroring")
mirroring.Source = body16
mirroring.Base = V(0, 0, 0)
mirroring.Normal = V(0, -1, 0)
body17.BaseFeature = mirroring
doc.recompute()
body18 = doc.addObject("PartDesign::Body", "Body017")
doc.recompute()

mirroring2 = doc.addObject("Part::Mirroring", "Mirroring001")
mirroring2.Source = body17
mirroring2.Base = V(0, 0, 0)
mirroring2.Normal = V(1, 0, 0)
body18.BaseFeature = mirroring2
doc.recompute()
body19 = doc.addObject("PartDesign::Body", "Body018")
doc.recompute()

mirroring3 = doc.addObject("Part::Mirroring", "Mirroring002")
mirroring3.Source = body16
mirroring3.Base = V(0, 0, 0)
mirroring3.Normal = V(1, 0, 0)
body19.BaseFeature = mirroring3
doc.recompute()
body20 = doc.addObject("PartDesign::Body", "Body019")

sketch17 = body20.newObject("Sketcher::SketchObject", "Sketch016")
sketch17.AttachmentSupport = (doc.getObject("YZ_Plane019"), [""])
sketch17.MapMode = "FlatFace"
sketch17.AttachmentOffset = App.Placement(V(0, 0, -13), App.Rotation())
sketch17.addGeometry([
    Part.LineSegment(V(-550, 75, 0), V(-550, 975, 0)),
    Part.LineSegment(V(-550, 975, 0), V(550, 975, 0)),
    Part.LineSegment(V(550, 975, 0), V(550, 75, 0)),
    Part.LineSegment(V(550, 75, 0), V(420, 75, 0)),
    Part.LineSegment(V(420, 75, 0), V(420, 192.267761, 0)),
    Part.LineSegment(V(420, 192.267761, 0), V(370, 192.267761, 0)),
    Part.LineSegment(V(370, 192.267761, 0), V(370, 75.145498, 0)),
    Part.LineSegment(V(370, 75.145498, 0), V(-370, 75.145498, 0)),
    Part.LineSegment(V(-370, 75.145498, 0), V(-370, 192.267761, 0)),
    Part.LineSegment(V(-370, 192.267761, 0), V(-420, 192.267761, 0)),
    Part.LineSegment(V(-420, 192.267761, 0), V(-420, 75, 0)),
    Part.LineSegment(V(-420, 75, 0), V(-550, 75, 0)),
], False)
sketch17.addConstraint([
    Sketcher.Constraint("Coincident", 0, 2, 1, 1),
    Sketcher.Constraint("Coincident", 1, 2, 2, 1),
    Sketcher.Constraint("Coincident", 2, 2, 3, 1),
    Sketcher.Constraint("Coincident", 3, 2, 4, 1),
    Sketcher.Constraint("Coincident", 4, 2, 5, 1),
    Sketcher.Constraint("Coincident", 5, 2, 6, 1),
    Sketcher.Constraint("Coincident", 6, 2, 7, 1),
    Sketcher.Constraint("Coincident", 7, 2, 8, 1),
    Sketcher.Constraint("Coincident", 8, 2, 9, 1),
    Sketcher.Constraint("Coincident", 9, 2, 10, 1),
    Sketcher.Constraint("Coincident", 10, 2, 11, 1),
    Sketcher.Constraint("Coincident", 11, 2, 0, 1),
    Sketcher.Constraint("Vertical", 0),
    Sketcher.Constraint("Horizontal", 1),
    Sketcher.Constraint("Vertical", 2),
    Sketcher.Constraint("Horizontal", 3),
    Sketcher.Constraint("Vertical", 4),
    Sketcher.Constraint("Horizontal", 5),
    Sketcher.Constraint("Vertical", 6),
    Sketcher.Constraint("Horizontal", 7),
    Sketcher.Constraint("Vertical", 8),
    Sketcher.Constraint("Horizontal", 9),
    Sketcher.Constraint("Vertical", 10),
    Sketcher.Constraint("Horizontal", 11),
    Sketcher.Constraint("Symmetric", 5, 2, 8, 2, -2),
    Sketcher.Constraint("Symmetric", 3, 2, 10, 2, -2),
    Sketcher.Constraint("Equal", 3, 11),
    Sketcher.Constraint("DistanceX", 1, 1, 1, 2, 1100.0),
    Sketcher.Constraint("DistanceX", 3, 2, 3, 1, 130.0),
    Sketcher.Constraint("DistanceX", 5, 2, 5, 1, 50.0),
    Sketcher.Constraint("DistanceY", 0, 1, 0, 2, 900.0),
    Sketcher.Constraint("DistanceY", -1, 1, 0, 2, 975.0),
    Sketcher.Constraint("DistanceY", 4, 1, 4, 2, 117.267761),
    Sketcher.Constraint("DistanceY", 6, 2, 6, 1, 117.122263),
])
pad17 = body20.newObject("PartDesign::Pad", "Pad016")
pad17.Profile = sketch17
pad17.Length = 9
pad17.Reversed = True
body21 = doc.addObject("PartDesign::Body", "Body020")

sketch18 = body21.newObject("Sketcher::SketchObject", "Sketch017")
sketch18.AttachmentSupport = (doc.getObject("YZ_Plane020"), [""])
sketch18.MapMode = "FlatFace"
sketch18.AttachmentOffset = App.Placement(V(0, 0, -13), App.Rotation())
sketch18.addGeometry([
    Part.LineSegment(V(550, 2025, 0), V(550, 1775, 0)),
    Part.LineSegment(V(550, 1775, 0), V(-550, 1775, 0)),
    Part.LineSegment(V(-550, 1775, 0), V(-550, 2025, 0)),
    Part.LineSegment(V(-550, 2025, 0), V(550, 2025, 0)),
], False)
sketch18.addConstraint([
    Sketcher.Constraint("Coincident", 0, 2, 1, 1),
    Sketcher.Constraint("Coincident", 1, 2, 2, 1),
    Sketcher.Constraint("Coincident", 2, 2, 3, 1),
    Sketcher.Constraint("Coincident", 3, 2, 0, 1),
    Sketcher.Constraint("Vertical", 0),
    Sketcher.Constraint("Horizontal", 1),
    Sketcher.Constraint("Vertical", 2),
    Sketcher.Constraint("Horizontal", 3),
    Sketcher.Constraint("DistanceX", 1, 2, 1, 1, 1100.0),
    Sketcher.Constraint("DistanceY", 0, 2, 0, 1, 250.0),
    Sketcher.Constraint("DistanceX", -1, 1, 0, 2, 550.0),
    Sketcher.Constraint("DistanceY", -1, 1, 0, 2, 1775.0),
])
pad18 = body21.newObject("PartDesign::Pad", "Pad017")
pad18.Profile = sketch18
pad18.Length = 9
pad18.Reversed = True
body22 = doc.addObject("PartDesign::Body", "Body021")
doc.recompute()

mirroring4 = doc.addObject("Part::Mirroring", "Mirroring003")
mirroring4.Source = body20
mirroring4.Base = V(0, 0, 0)
mirroring4.Normal = V(1, 0, 0)
body22.BaseFeature = mirroring4
doc.recompute()
body23 = doc.addObject("PartDesign::Body", "Body022")
doc.recompute()

mirroring5 = doc.addObject("Part::Mirroring", "Mirroring004")
mirroring5.Source = body21
mirroring5.Base = V(0, 0, 0)
mirroring5.Normal = V(1, 0, 0)
body23.BaseFeature = mirroring5
doc.recompute()

doc.recompute()
